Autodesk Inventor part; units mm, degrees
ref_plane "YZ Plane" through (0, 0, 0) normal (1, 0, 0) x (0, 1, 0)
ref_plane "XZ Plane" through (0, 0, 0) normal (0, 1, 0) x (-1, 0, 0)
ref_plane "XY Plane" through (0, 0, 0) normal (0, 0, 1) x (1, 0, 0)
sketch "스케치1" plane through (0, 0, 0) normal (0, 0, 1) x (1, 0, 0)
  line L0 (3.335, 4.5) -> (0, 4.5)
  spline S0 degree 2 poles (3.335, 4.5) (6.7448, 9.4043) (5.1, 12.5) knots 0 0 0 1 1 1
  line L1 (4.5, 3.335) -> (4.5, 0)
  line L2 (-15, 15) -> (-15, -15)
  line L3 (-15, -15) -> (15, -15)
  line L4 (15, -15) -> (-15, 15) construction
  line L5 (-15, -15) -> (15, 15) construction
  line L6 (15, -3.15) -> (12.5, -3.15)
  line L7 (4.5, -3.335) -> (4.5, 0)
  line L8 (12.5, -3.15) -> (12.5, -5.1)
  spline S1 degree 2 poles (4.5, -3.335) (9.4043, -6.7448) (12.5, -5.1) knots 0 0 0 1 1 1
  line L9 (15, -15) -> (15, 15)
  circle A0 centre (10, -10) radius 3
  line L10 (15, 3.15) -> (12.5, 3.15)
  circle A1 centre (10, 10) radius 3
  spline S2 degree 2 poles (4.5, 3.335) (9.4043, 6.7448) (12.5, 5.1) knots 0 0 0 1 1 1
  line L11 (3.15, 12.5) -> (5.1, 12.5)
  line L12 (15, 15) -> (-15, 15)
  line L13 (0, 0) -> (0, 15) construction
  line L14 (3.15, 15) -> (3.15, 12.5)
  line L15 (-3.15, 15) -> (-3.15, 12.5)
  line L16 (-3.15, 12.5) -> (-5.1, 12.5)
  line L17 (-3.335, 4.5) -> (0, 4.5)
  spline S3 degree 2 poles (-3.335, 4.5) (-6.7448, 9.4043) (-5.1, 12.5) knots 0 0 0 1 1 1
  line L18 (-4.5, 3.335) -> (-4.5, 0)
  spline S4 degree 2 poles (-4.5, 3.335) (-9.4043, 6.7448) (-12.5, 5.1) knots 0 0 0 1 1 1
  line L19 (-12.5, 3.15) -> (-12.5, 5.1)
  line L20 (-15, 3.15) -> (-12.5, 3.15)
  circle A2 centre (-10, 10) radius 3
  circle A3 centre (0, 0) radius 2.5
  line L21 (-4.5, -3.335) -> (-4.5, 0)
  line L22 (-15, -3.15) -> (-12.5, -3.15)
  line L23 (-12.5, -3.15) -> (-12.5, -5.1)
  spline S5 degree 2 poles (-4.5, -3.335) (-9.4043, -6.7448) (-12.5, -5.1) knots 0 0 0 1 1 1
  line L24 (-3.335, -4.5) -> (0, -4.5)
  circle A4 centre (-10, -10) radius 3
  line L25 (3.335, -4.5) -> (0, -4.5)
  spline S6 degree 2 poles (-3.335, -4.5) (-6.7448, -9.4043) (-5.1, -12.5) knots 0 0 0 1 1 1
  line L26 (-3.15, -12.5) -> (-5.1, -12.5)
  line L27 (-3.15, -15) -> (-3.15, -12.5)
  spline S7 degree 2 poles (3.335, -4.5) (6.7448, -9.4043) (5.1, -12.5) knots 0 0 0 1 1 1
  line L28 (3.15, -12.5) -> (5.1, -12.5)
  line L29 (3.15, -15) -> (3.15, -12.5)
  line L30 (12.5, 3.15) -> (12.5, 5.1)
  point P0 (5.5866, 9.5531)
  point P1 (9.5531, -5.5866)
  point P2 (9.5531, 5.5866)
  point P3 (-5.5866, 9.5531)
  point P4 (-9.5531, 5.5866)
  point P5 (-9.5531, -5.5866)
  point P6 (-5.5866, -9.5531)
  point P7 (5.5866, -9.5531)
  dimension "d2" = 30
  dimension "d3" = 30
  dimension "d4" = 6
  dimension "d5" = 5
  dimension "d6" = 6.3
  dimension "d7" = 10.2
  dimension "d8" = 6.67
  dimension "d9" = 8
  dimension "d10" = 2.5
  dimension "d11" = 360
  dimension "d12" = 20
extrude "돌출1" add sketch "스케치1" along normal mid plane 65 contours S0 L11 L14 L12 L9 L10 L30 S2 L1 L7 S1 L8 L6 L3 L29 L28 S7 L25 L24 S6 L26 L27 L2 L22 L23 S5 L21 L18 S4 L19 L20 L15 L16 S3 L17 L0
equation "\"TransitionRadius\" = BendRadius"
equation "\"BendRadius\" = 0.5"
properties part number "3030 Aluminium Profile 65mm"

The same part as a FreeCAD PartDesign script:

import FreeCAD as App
import Part
import Sketcher

V = App.Vector

doc = App.newDocument("Part")
body = doc.addObject("PartDesign::Body", "Body")

sketch1 = doc.addObject("Sketcher::SketchObject", "Sketch")
body.addObject(sketch1)
sketch1.AttachmentSupport = (doc.XY_Plane, [""])
sketch1.MapMode = "FlatFace"
sketch1.addGeometry([
    Part.BSplineCurve([V(3.335, 4.5, 0), V(6.7448, 9.4043, 0), V(5.1, 12.5, 0)], [3, 3], [0, 1], False, 2, [1, 1, 1], False),
    Part.LineSegment(V(3.335, 4.5, 0), V(-3.335, 4.5, 0)),
    Part.BSplineCurve([V(-3.335, 4.5, 0), V(-6.7448, 9.4043, 0), V(-5.1, 12.5, 0)], [3, 3], [0, 1], False, 2, [1, 1, 1], False),
    Part.LineSegment(V(-5.1, 12.5, 0), V(-3.15, 12.5, 0)),
    Part.LineSegment(V(-3.15, 12.5, 0), V(-3.15, 15, 0)),
    Part.LineSegment(V(-3.15, 15, 0), V(-15, 15, 0)),
    Part.LineSegment(V(-15, 15, 0), V(-15, 3.15, 0)),
    Part.LineSegment(V(-15, 3.15, 0), V(-12.5, 3.15, 0)),
    Part.LineSegment(V(-12.5, 3.15, 0), V(-12.5, 5.1, 0)),
    Part.BSplineCurve([V(-4.5, 3.335, 0), V(-9.4043, 6.7448, 0), V(-12.5, 5.1, 0)], [3, 3], [0, 1], False, 2, [1, 1, 1], False),
    Part.LineSegment(V(-4.5, 3.335, 0), V(-4.5, -3.335, 0)),
    Part.BSplineCurve([V(-4.5, -3.335, 0), V(-9.4043, -6.7448, 0), V(-12.5, -5.1, 0)], [3, 3], [0, 1], False, 2, [1, 1, 1], False),
    Part.LineSegment(V(-12.5, -5.1, 0), V(-12.5, -3.15, 0)),
    Part.LineSegment(V(-12.5, -3.15, 0), V(-15, -3.15, 0)),
    Part.LineSegment(V(-15, -3.15, 0), V(-15, -15, 0)),
    Part.LineSegment(V(-15, -15, 0), V(-3.15, -15, 0)),
    Part.LineSegment(V(-3.15, -15, 0), V(-3.15, -12.5, 0)),
    Part.LineSegment(V(-3.15, -12.5, 0), V(-5.1, -12.5, 0)),
    Part.BSplineCurve([V(-3.335, -4.5, 0), V(-6.7448, -9.4043, 0), V(-5.1, -12.5, 0)], [3, 3], [0, 1], False, 2, [1, 1, 1], False),
    Part.LineSegment(V(-3.335, -4.5, 0), V(3.335, -4.5, 0)),
    Part.BSplineCurve([V(3.335, -4.5, 0), V(6.7448, -9.4043, 0), V(5.1, -12.5, 0)], [3, 3], [0, 1], False, 2, [1, 1, 1], False),
    Part.LineSegment(V(5.1, -12.5, 0), V(3.15, -12.5, 0)),
    Part.LineSegment(V(3.15, -12.5, 0), V(3.15, -15, 0)),
    Part.LineSegment(V(3.15, -15, 0), V(15, -15, 0)),
    Part.LineSegment(V(15, -15, 0), V(15, -3.15, 0)),
    Part.LineSegment(V(15, -3.15, 0), V(12.5, -3.15, 0)),
    Part.LineSegment(V(12.5, -3.15, 0), V(12.5, -5.1, 0)),
    Part.BSplineCurve([V(4.5, -3.335, 0), V(9.4043, -6.7448, 0), V(12.5, -5.1, 0)], [3, 3], [0, 1], False, 2, [1, 1, 1], False),
    Part.LineSegment(V(4.5, -3.335, 0), V(4.5, 3.335, 0)),
    Part.BSplineCurve([V(4.5, 3.335, 0), V(9.4043, 6.7448, 0), V(12.5, 5.1, 0)], [3, 3], [0, 1], False, 2, [1, 1, 1], False),
    Part.LineSegment(V(12.5, 5.1, 0), V(12.5, 3.15, 0)),
    Part.LineSegment(V(12.5, 3.15, 0), V(15, 3.15, 0)),
    Part.LineSegment(V(15, 3.15, 0), V(15, 15, 0)),
    Part.LineSegment(V(15, 15, 0), V(3.15, 15, 0)),
    Part.LineSegment(V(3.15, 15, 0), V(3.15, 12.5, 0)),
    Part.LineSegment(V(3.15, 12.5, 0), V(5.1, 12.5, 0)),
    Part.Circle(V(-10, -10, 0), V(0, 0, 1), 3),
    Part.Circle(V(10, -10, 0), V(0, 0, 1), 3),
    Part.Circle(V(-10, 10, 0), V(0, 0, 1), 3),
    Part.Circle(V(0, 0, 0), V(0, 0, 1), 2.5),
    Part.Circle(V(10, 10, 0), V(0, 0, 1), 3),
], False)
sketch1.addConstraint([
    Sketcher.Constraint("Block", 0),
    Sketcher.Constraint("Block", 2),
    Sketcher.Constraint("Block", 9),
    Sketcher.Constraint("Block", 11),
    Sketcher.Constraint("Block", 18),
    Sketcher.Constraint("Block", 20),
    Sketcher.Constraint("Block", 27),
    Sketcher.Constraint("Block", 29),
    Sketcher.Constraint("Coincident", 0, 1, 1, 1),
    Sketcher.Constraint("Coincident", 1, 2, 2, 1),
    Sketcher.Constraint("Coincident", 2, 2, 3, 1),
    Sketcher.Constraint("Coincident", 3, 2, 4, 1),
    Sketcher.Constraint("Coincident", 4, 2, 5, 1),
    Sketcher.Constraint("Coincident", 5, 2, 6, 1),
    Sketcher.Constraint("Coincident", 6, 2, 7, 1),
    Sketcher.Constraint("Coincident", 7, 2, 8, 1),
    Sketcher.Constraint("Coincident", 8, 2, 9, 2),
    Sketcher.Constraint("Coincident", 9, 1, 10, 1),
    Sketcher.Constraint("Coincident", 10, 2, 11, 1),
    Sketcher.Constraint("Coincident", 11, 2, 12, 1),
    Sketcher.Constraint("Coincident", 12, 2, 13, 1),
    Sketcher.Constraint("Coincident", 13, 2, 14, 1),
    Sketcher.Constraint("Coincident", 14, 2, 15, 1),
    Sketcher.Constraint("Coincident", 15, 2, 16, 1),
    Sketcher.Constraint("Coincident", 16, 2, 17, 1),
    Sketcher.Constraint("Coincident", 17, 2, 18, 2),
    Sketcher.Constraint("Coincident", 18, 1, 19, 1),
    Sketcher.Constraint("Coincident", 19, 2, 20, 1),
    Sketcher.Constraint("Coincident", 20, 2, 21, 1),
    Sketcher.Constraint("Coincident", 21, 2, 22, 1),
    Sketcher.Constraint("Coincident", 22, 2, 23, 1),
    Sketcher.Constraint("Coincident", 23, 2, 24, 1),
    Sketcher.Constraint("Coincident", 24, 2, 25, 1),
    Sketcher.Constraint("Coincident", 25, 2, 26, 1),
    Sketcher.Constraint("Coincident", 26, 2, 27, 2),
    Sketcher.Constraint("Coincident", 27, 1, 28, 1),
    Sketcher.Constraint("Coincident", 28, 2, 29, 1),
    Sketcher.Constraint("Coincident", 29, 2, 30, 1),
    Sketcher.Constraint("Coincident", 30, 2, 31, 1),
    Sketcher.Constraint("Coincident", 31, 2, 32, 1),
    Sketcher.Constraint("Coincident", 32, 2, 33, 1),
    Sketcher.Constraint("Coincident", 33, 2, 34, 1),
    Sketcher.Constraint("Coincident", 34, 2, 35, 1),
    Sketcher.Constraint("Coincident", 35, 2, 0, 2),
    Sketcher.Constraint("Horizontal", 3),
    Sketcher.Constraint("Vertical", 4),
    Sketcher.Constraint("Horizontal", 5),
    Sketcher.Constraint("Vertical", 6),
    Sketcher.Constraint("Horizontal", 7),
    Sketcher.Constraint("Vertical", 8),
    Sketcher.Constraint("Vertical", 12),
    Sketcher.Constraint("Horizontal", 13),
    Sketcher.Constraint("Vertical", 14),
    Sketcher.Constraint("Horizontal", 15),
    Sketcher.Constraint("Vertical", 16),
    Sketcher.Constraint("Horizontal", 17),
    Sketcher.Constraint("Horizontal", 21),
    Sketcher.Constraint("Vertical", 22),
    Sketcher.Constraint("Horizontal", 23),
    Sketcher.Constraint("Vertical", 24),
    Sketcher.Constraint("Horizontal", 25),
    Sketcher.Constraint("Vertical", 26),
    Sketcher.Constraint("Vertical", 30),
    Sketcher.Constraint("Horizontal", 31),
    Sketcher.Constraint("Vertical", 32),
    Sketcher.Constraint("Horizontal", 33),
    Sketcher.Constraint("Vertical", 34),
    Sketcher.Constraint("Horizontal", 35),
    Sketcher.Constraint("Coincident", 39, 3, -1, 1),
    Sketcher.Constraint("Diameter", 36, 6.0),
    Sketcher.Constraint("Diameter", 37, 6.0),
    Sketcher.Constraint("Diameter", 38, 6.0),
    Sketcher.Constraint("Diameter", 39, 5.0),
    Sketcher.Constraint("Diameter", 40, 6.0),
    Sketcher.Constraint("DistanceX", 7, 1, 7, 2, 2.5),
    Sketcher.Constraint("DistanceX", 13, 2, 13, 1, 2.5),
    Sketcher.Constraint("DistanceX", 25, 2, 25, 1, 2.5),
    Sketcher.Constraint("DistanceX", 31, 1, 31, 2, 2.5),
    Sketcher.Constraint("DistanceY", 4, 1, 4, 2, 2.5),
    Sketcher.Constraint("DistanceY", 16, 1, 16, 2, 2.5),
    Sketcher.Constraint("DistanceY", 22, 2, 22, 1, 2.5),
    Sketcher.Constraint("DistanceY", 34, 2, 34, 1, 2.5),
    Sketcher.Constraint("DistanceX", 36, 3, 37, 3, 20.0),
    Sketcher.Constraint("DistanceY", 36, 3, 38, 3, 20.0),
    Sketcher.Constraint("DistanceX", 38, 3, 37, 3, 20.0),
    Sketcher.Constraint("DistanceY", 37, 3, 38, 3, 20.0),
    Sketcher.Constraint("DistanceY", 37, 3, 40, 3, 20.0),
    Sketcher.Constraint("DistanceX", 38, 3, 40, 3, 20.0),
    Sketcher.Constraint("DistanceY", 38, 3, 4, 2, 5.0),
    Sketcher.Constraint("DistanceX", 5, 2, 38, 3, 5.0),
    Sketcher.Constraint("DistanceY", 12, 2, 7, 2, 6.3),
    Sketcher.Constraint("DistanceX", 16, 2, 21, 2, 6.3),
    Sketcher.Constraint("DistanceY", 25, 2, 30, 2, 6.3),
    Sketcher.Constraint("DistanceX", 4, 2, 33, 2, 6.3),
    Sketcher.Constraint("DistanceX", 3, 1, 3, 2, 1.95),
    Sketcher.Constraint("DistanceX", 15, 1, 15, 2, 11.85),
    Sketcher.Constraint("DistanceY", 6, 2, 6, 1, 11.85),
    Sketcher.Constraint("DistanceY", 24, 1, 24, 2, 11.85),
])
pad1 = doc.addObject("PartDesign::Pad", "Pad")
body.addObject(pad1)
pad1.Profile = sketch1
pad1.Length = 65
pad1.Midplane = True

doc.recompute()
